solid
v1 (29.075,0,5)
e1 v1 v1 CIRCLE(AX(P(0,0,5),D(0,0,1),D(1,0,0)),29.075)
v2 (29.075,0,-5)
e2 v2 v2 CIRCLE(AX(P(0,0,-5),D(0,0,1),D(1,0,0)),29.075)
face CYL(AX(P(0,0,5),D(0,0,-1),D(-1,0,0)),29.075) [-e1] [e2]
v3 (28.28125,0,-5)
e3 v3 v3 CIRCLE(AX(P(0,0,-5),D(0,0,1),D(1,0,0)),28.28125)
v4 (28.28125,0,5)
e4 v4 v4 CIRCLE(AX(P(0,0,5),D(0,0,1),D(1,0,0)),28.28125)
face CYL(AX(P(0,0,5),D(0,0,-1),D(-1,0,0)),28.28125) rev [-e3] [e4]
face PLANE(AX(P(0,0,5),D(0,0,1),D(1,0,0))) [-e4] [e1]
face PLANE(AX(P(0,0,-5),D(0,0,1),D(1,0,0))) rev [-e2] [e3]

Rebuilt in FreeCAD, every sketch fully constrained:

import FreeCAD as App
import Part
import Sketcher

V = App.Vector
Q = App.Units.Quantity

doc = App.newDocument("Part")
body = doc.addObject("PartDesign::Body", "Body")

# Sketch on XY plane
sketch1 = body.newObject("Sketcher::SketchObject", "Sketch")
sketch1.AttachmentSupport = (doc.getObject("XY_Plane"), [""])
sketch1.MapMode = "FlatFace"
sketch1.addGeometry([
    Part.Circle(V(0, 0, 0), V(0, 0, 1), 29),
    Part.Circle(V(0, 0, 0), V(0, 0, 1), 28),
], False)
sketch1.addConstraint([
    Sketcher.Constraint("Coincident", 0, 3, -1, 1),
    Sketcher.Constraint("Coincident", 1, 3, -1, 1),
    Sketcher.Constraint("Diameter", 0, Q("58.15 mm")),
    Sketcher.Constraint("Diameter", 1, Q("56.5625 mm")),
])
pad1 = body.newObject("PartDesign::Pad", "Pad")
pad1.Profile = sketch1
pad1.Length = 10
pad1.Midplane = True

doc.recompute()
